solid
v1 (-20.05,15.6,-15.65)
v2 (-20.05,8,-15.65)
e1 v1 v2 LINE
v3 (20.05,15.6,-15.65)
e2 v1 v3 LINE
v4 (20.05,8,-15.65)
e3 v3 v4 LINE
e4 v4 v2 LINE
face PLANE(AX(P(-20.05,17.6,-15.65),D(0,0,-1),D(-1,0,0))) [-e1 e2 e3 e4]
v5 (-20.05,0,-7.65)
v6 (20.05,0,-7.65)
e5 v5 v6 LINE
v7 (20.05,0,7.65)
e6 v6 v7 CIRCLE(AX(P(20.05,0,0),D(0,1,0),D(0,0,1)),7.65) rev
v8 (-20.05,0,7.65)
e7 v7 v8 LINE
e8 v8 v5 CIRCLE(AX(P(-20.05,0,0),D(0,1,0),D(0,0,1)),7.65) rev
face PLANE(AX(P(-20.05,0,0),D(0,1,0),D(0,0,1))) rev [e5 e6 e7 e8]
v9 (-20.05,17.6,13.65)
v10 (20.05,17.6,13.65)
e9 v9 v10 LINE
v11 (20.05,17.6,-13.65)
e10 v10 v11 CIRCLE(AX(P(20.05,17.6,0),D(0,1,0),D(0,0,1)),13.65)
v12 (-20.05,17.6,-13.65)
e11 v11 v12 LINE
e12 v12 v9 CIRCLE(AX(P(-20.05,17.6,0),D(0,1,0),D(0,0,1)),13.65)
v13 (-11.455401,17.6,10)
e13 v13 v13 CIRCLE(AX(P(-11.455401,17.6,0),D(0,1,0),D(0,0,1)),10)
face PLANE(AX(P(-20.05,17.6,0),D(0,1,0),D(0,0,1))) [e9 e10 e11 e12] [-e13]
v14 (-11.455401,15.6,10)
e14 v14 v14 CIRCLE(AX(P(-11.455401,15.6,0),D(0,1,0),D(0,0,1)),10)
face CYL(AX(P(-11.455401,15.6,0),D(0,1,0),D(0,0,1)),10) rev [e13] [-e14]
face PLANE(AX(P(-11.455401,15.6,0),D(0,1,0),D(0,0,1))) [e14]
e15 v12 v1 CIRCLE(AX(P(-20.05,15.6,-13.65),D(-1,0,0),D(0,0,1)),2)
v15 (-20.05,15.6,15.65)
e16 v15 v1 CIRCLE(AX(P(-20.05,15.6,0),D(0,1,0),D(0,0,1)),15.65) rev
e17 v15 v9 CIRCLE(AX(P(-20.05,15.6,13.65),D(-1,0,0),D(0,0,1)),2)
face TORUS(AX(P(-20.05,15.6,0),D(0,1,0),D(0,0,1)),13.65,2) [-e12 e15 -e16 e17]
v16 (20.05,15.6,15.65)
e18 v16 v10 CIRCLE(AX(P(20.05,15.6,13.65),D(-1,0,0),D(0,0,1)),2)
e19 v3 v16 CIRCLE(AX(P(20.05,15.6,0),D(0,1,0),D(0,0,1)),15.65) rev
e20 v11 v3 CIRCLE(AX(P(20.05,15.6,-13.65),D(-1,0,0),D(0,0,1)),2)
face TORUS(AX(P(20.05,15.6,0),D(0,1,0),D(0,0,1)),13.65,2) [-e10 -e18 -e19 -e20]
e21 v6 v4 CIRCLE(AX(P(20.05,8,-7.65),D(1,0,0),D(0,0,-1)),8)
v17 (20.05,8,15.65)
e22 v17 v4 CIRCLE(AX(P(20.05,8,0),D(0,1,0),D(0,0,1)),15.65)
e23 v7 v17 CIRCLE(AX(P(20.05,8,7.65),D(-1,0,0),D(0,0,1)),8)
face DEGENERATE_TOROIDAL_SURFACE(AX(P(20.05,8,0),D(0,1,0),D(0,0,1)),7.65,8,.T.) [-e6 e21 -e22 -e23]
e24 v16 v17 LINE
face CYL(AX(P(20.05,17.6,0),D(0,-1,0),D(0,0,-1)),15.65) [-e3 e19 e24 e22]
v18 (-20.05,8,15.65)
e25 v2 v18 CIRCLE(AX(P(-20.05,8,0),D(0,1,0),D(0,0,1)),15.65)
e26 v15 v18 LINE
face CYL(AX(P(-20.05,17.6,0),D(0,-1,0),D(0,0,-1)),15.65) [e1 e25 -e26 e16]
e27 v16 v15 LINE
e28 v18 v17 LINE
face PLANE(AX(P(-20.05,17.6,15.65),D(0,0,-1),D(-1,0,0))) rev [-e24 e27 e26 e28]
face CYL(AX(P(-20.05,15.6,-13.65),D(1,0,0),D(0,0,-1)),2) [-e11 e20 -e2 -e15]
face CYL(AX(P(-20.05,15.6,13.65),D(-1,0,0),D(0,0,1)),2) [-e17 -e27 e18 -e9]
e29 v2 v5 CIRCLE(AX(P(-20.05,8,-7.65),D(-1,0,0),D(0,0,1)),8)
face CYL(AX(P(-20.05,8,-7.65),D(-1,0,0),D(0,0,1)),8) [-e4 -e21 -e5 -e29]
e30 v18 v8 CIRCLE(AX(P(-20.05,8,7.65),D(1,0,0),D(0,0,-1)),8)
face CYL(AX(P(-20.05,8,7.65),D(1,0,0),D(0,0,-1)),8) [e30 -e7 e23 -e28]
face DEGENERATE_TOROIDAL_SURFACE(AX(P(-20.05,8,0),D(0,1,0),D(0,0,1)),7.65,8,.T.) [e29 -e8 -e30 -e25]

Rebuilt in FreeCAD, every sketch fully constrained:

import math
import FreeCAD as App
import Part
import Sketcher

V = App.Vector


def edges_at(feature, points):
    """Names of the edges that pass closest to the given points."""
    edges = feature.Shape.Edges
    near = lambda p: min(range(len(edges)), key=lambda i: edges[i].distToShape(Part.Vertex(*p))[0])
    return sorted({f"Edge{near(p) + 1}" for p in points})

doc = App.newDocument("Part")
body = doc.addObject("PartDesign::Body", "Body")

# Sketch on XZ plane
sketch1 = body.newObject("Sketcher::SketchObject", "Sketch")
sketch1.AttachmentSupport = (doc.getObject("XZ_Plane"), [""])
sketch1.MapMode = "FlatFace"
sketch1.addGeometry([
    Part.LineSegment(V(20, -16, 0), V(-20, -16, 0)),
    Part.ArcOfCircle(Part.Circle(V(-20, 0, 0), V(0, 0, 1), 16), math.radians(90), math.radians(270)),
    Part.LineSegment(V(-20, 16, 0), V(20, 16, 0)),
    Part.ArcOfCircle(Part.Circle(V(20, 0, 0), V(0, 0, 1), 16), math.radians(-90), math.radians(90)),
], False)
sketch1.addConstraint([
    Sketcher.Constraint("Tangent", 0, 2, 1, 2),
    Sketcher.Constraint("Tangent", 1, 1, 2, 1),
    Sketcher.Constraint("Tangent", 2, 2, 3, 2),
    Sketcher.Constraint("Tangent", 3, 1, 0, 1),
    Sketcher.Constraint("Horizontal", 0),
    Sketcher.Constraint("Horizontal", 2),
    Sketcher.Constraint("Symmetric", 1, 3, 3, 3, -1, 1),
    Sketcher.Constraint("Radius", 1, 15.65),
    Sketcher.Constraint("DistanceX", 0, 2, 0, 1, 40.1),
])
pad1 = body.newObject("PartDesign::Pad", "Pad")
pad1.Profile = sketch1
pad1.Length = 17.6
pad1.Reversed = True
doc.recompute()

fillet = body.newObject("PartDesign::Fillet", "Fillet")
fillet.Base = (pad1, edges_at(pad1, [
    (35.7, 17.6, 0),
    (0, 17.6, -15.65),
    (-35.7, 17.6, 0),
    (0, 17.6, 15.65),
]))
fillet.Radius = 2
doc.recompute()

fillet2 = body.newObject("PartDesign::Fillet", "Fillet001")
fillet2.Base = (fillet, edges_at(fillet, [
    (0, 0, -15.65),
    (35.7, 0, 0),
    (0, 0, 15.65),
    (-35.7, 0, 0),
]))
fillet2.Radius = 8

# Sketch on XZ plane
sketch2 = body.newObject("Sketcher::SketchObject", "Sketch001")
sketch2.AttachmentSupport = (doc.getObject("XZ_Plane"), [""])
sketch2.MapMode = "FlatFace"
sketch2.AttachmentOffset = App.Placement(V(0, 0, -17.6), App.Rotation())
sketch2.addGeometry(Part.Circle(V(-11, 0, 0), V(0, 0, 1), 10), False)
sketch2.addConstraint([
    Sketcher.Constraint("PointOnObject", 0, 3, -1),
    Sketcher.Constraint("Diameter", 0, 20.0),
    Sketcher.Constraint("DistanceX", 0, 3, -1, 1, 11.455401),
])
pocket1 = body.newObject("PartDesign::Pocket", "Pocket")
pocket1.Profile = sketch2
pocket1.Length = 2
pocket1.Reversed = True

doc.recompute()
